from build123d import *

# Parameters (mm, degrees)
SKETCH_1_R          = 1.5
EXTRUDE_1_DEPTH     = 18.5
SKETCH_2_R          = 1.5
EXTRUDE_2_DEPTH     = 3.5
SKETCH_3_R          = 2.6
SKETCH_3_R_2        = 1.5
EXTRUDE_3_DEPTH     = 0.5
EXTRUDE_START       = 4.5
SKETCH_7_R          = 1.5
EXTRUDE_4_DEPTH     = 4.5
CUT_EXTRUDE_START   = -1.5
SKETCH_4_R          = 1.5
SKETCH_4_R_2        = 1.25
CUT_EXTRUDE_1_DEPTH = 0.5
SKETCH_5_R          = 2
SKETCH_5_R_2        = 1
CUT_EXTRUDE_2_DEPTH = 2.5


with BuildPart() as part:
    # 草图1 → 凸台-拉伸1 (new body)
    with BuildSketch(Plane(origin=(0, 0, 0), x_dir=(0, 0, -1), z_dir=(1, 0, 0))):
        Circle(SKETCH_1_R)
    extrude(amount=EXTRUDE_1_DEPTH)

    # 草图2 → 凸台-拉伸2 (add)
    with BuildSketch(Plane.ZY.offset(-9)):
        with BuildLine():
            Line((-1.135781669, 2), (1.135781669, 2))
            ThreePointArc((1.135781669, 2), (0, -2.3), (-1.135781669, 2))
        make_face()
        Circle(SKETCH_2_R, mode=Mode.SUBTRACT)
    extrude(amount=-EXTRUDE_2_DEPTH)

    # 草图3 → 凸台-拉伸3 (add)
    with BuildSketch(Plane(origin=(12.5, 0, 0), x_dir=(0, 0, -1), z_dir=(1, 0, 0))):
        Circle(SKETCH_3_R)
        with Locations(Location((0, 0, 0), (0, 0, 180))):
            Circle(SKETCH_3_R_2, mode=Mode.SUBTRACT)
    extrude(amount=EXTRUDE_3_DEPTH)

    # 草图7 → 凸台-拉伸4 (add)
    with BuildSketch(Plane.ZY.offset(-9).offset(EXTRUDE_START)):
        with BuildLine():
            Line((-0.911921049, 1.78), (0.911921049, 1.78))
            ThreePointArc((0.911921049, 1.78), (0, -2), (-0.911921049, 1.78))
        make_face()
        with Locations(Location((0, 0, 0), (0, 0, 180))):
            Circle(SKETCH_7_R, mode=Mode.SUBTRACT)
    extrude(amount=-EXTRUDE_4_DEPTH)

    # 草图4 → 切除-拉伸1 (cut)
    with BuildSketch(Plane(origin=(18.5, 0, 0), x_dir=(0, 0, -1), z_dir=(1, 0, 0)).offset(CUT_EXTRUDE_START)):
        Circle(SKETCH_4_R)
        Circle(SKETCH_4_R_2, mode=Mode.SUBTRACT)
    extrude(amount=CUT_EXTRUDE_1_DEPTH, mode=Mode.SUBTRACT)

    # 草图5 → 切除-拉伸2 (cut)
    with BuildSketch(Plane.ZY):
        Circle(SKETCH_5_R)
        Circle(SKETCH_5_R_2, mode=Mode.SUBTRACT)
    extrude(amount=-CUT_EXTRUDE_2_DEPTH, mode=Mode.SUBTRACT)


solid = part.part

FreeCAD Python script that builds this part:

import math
import FreeCAD as App
import Part
import Sketcher
from FreeCAD import Vector
Q = App.Units.Quantity

doc = App.newDocument("Part")
body = doc.addObject("PartDesign::Body", "Body")

sketch1 = doc.addObject("Sketcher::SketchObject", "Sketch")
body.addObject(sketch1)
sketch1.AttachmentSupport = (doc.YZ_Plane, [""])
sketch1.MapMode = "FlatFace"
sketch1.addGeometry(Part.Circle(Vector(0, 0, 0), Vector(0, 0, 1), 1.5), False)
sketch1.addConstraint(Sketcher.Constraint("Coincident", 0, 3, -1, 1))
sketch1.addConstraint(Sketcher.Constraint("Diameter", 0, Q("3 mm")))
pad1 = doc.addObject("PartDesign::Pad", "Pad")
body.addObject(pad1)
pad1.Profile = sketch1
pad1.Length = 18.5

sketch2 = doc.addObject("Sketcher::SketchObject", "Sketch001")
body.addObject(sketch2)
sketch2.AttachmentSupport = (doc.YZ_Plane, [""])
sketch2.MapMode = "FlatFace"
sketch2.AttachmentOffset = App.Placement(Vector(0, 0, 9), App.Rotation())
sketch2.addGeometry(Part.LineSegment(Vector(2, 1.1, 0), Vector(2, -1.1, 0)), False)
sketch2.addGeometry(Part.ArcOfCircle(Part.Circle(Vector(0, 0, 0), Vector(0, 0, 1), 2.3), math.radians(30), math.radians(330)), False)
sketch2.addGeometry(Part.Circle(Vector(0, 0, 0), Vector(0, 0, 1), 1.5), False)
sketch2.addConstraint(Sketcher.Constraint("Coincident", 0, 1, 1, 1))
sketch2.addConstraint(Sketcher.Constraint("Coincident", 1, 2, 0, 2))
sketch2.addConstraint(Sketcher.Constraint("Vertical", 0))
sketch2.addConstraint(Sketcher.Constraint("Coincident", 1, 3, -1, 1))
sketch2.addConstraint(Sketcher.Constraint("Coincident", 2, 3, -1, 1))
sketch2.addConstraint(Sketcher.Constraint("Diameter", 2, Q("3 mm")))
sketch2.addConstraint(Sketcher.Constraint("Radius", 1, Q("2.3 mm")))
sketch2.addConstraint(Sketcher.Constraint("DistanceX", -1, 1, 0, 1, Q("2 mm")))
pad2 = doc.addObject("PartDesign::Pad", "Pad001")
body.addObject(pad2)
pad2.Profile = sketch2
pad2.Length = 3.5

sketch3 = doc.addObject("Sketcher::SketchObject", "Sketch002")
body.addObject(sketch3)
sketch3.AttachmentSupport = (doc.YZ_Plane, [""])
sketch3.MapMode = "FlatFace"
sketch3.AttachmentOffset = App.Placement(Vector(0, 0, 12.5), App.Rotation())
sketch3.addGeometry(Part.Circle(Vector(0, 0, 0), Vector(0, 0, 1), 2.6), False)
sketch3.addGeometry(Part.Circle(Vector(0, 0, 0), Vector(0, 0, 1), 1.5), False)
sketch3.addConstraint(Sketcher.Constraint("Coincident", 0, 3, -1, 1))
sketch3.addConstraint(Sketcher.Constraint("Coincident", 1, 3, -1, 1))
sketch3.addConstraint(Sketcher.Constraint("Diameter", 1, Q("3 mm")))
sketch3.addConstraint(Sketcher.Constraint("Diameter", 0, Q("5.2 mm")))
pad3 = doc.addObject("PartDesign::Pad", "Pad002")
body.addObject(pad3)
pad3.Profile = sketch3
pad3.Length = 0.5

sketch4 = doc.addObject("Sketcher::SketchObject", "Sketch003")
body.addObject(sketch4)
sketch4.AttachmentSupport = (doc.YZ_Plane, [""])
sketch4.MapMode = "FlatFace"
sketch4.AttachmentOffset = App.Placement(Vector(0, 0, 4.5), App.Rotation())
sketch4.addGeometry(Part.LineSegment(Vector(1.8, 0.9, 0), Vector(1.8, -0.9, 0)), False)
sketch4.addGeometry(Part.ArcOfCircle(Part.Circle(Vector(0, 0, 0), Vector(0, 0, 1), 2), math.radians(27), math.radians(333)), False)
sketch4.addGeometry(Part.Circle(Vector(0, 0, 0), Vector(0, 0, 1), 1.5), False)
sketch4.addConstraint(Sketcher.Constraint("Coincident", 0, 1, 1, 1))
sketch4.addConstraint(Sketcher.Constraint("Coincident", 1, 2, 0, 2))
sketch4.addConstraint(Sketcher.Constraint("Vertical", 0))
sketch4.addConstraint(Sketcher.Constraint("Coincident", 1, 3, -1, 1))
sketch4.addConstraint(Sketcher.Constraint("Coincident", 2, 3, -1, 1))
sketch4.addConstraint(Sketcher.Constraint("Diameter", 2, Q("3 mm")))
sketch4.addConstraint(Sketcher.Constraint("Radius", 1, Q("2 mm")))
sketch4.addConstraint(Sketcher.Constraint("DistanceX", -1, 1, 0, 1, Q("1.78 mm")))
pad4 = doc.addObject("PartDesign::Pad", "Pad003")
body.addObject(pad4)
pad4.Profile = sketch4
pad4.Length = 4.5

sketch5 = doc.addObject("Sketcher::SketchObject", "Sketch004")
body.addObject(sketch5)
sketch5.AttachmentSupport = (doc.YZ_Plane, [""])
sketch5.MapMode = "FlatFace"
sketch5.AttachmentOffset = App.Placement(Vector(0, 0, 17), App.Rotation())
sketch5.addGeometry(Part.Circle(Vector(0, 0, 0), Vector(0, 0, 1), 1.5), False)
sketch5.addGeometry(Part.Circle(Vector(0, 0, 0), Vector(0, 0, 1), 1.2), False)
sketch5.addConstraint(Sketcher.Constraint("Coincident", 0, 3, -1, 1))
sketch5.addConstraint(Sketcher.Constraint("Coincident", 1, 3, -1, 1))
sketch5.addConstraint(Sketcher.Constraint("Diameter", 0, Q("3 mm")))
sketch5.addConstraint(Sketcher.Constraint("Diameter", 1, Q("2.5 mm")))
pocket1 = doc.addObject("PartDesign::Pocket", "Pocket")
body.addObject(pocket1)
pocket1.Profile = sketch5
pocket1.Length = 0.5
pocket1.Reversed = True

sketch6 = doc.addObject("Sketcher::SketchObject", "Sketch005")
body.addObject(sketch6)
sketch6.AttachmentSupport = (doc.YZ_Plane, [""])
sketch6.MapMode = "FlatFace"
sketch6.addGeometry(Part.Circle(Vector(0, 0, 0), Vector(0, 0, 1), 2), False)
sketch6.addGeometry(Part.Circle(Vector(0, 0, 0), Vector(0, 0, 1), 1), False)
sketch6.addConstraint(Sketcher.Constraint("Coincident", 0, 3, -1, 1))
sketch6.addConstraint(Sketcher.Constraint("Coincident", 1, 3, -1, 1))
sketch6.addConstraint(Sketcher.Constraint("Diameter", 0, Q("4 mm")))
sketch6.addConstraint(Sketcher.Constraint("Diameter", 1, Q("2 mm")))
pocket2 = doc.addObject("PartDesign::Pocket", "Pocket001")
body.addObject(pocket2)
pocket2.Profile = sketch6
pocket2.Length = 2.5
pocket2.Reversed = True

doc.recompute()
